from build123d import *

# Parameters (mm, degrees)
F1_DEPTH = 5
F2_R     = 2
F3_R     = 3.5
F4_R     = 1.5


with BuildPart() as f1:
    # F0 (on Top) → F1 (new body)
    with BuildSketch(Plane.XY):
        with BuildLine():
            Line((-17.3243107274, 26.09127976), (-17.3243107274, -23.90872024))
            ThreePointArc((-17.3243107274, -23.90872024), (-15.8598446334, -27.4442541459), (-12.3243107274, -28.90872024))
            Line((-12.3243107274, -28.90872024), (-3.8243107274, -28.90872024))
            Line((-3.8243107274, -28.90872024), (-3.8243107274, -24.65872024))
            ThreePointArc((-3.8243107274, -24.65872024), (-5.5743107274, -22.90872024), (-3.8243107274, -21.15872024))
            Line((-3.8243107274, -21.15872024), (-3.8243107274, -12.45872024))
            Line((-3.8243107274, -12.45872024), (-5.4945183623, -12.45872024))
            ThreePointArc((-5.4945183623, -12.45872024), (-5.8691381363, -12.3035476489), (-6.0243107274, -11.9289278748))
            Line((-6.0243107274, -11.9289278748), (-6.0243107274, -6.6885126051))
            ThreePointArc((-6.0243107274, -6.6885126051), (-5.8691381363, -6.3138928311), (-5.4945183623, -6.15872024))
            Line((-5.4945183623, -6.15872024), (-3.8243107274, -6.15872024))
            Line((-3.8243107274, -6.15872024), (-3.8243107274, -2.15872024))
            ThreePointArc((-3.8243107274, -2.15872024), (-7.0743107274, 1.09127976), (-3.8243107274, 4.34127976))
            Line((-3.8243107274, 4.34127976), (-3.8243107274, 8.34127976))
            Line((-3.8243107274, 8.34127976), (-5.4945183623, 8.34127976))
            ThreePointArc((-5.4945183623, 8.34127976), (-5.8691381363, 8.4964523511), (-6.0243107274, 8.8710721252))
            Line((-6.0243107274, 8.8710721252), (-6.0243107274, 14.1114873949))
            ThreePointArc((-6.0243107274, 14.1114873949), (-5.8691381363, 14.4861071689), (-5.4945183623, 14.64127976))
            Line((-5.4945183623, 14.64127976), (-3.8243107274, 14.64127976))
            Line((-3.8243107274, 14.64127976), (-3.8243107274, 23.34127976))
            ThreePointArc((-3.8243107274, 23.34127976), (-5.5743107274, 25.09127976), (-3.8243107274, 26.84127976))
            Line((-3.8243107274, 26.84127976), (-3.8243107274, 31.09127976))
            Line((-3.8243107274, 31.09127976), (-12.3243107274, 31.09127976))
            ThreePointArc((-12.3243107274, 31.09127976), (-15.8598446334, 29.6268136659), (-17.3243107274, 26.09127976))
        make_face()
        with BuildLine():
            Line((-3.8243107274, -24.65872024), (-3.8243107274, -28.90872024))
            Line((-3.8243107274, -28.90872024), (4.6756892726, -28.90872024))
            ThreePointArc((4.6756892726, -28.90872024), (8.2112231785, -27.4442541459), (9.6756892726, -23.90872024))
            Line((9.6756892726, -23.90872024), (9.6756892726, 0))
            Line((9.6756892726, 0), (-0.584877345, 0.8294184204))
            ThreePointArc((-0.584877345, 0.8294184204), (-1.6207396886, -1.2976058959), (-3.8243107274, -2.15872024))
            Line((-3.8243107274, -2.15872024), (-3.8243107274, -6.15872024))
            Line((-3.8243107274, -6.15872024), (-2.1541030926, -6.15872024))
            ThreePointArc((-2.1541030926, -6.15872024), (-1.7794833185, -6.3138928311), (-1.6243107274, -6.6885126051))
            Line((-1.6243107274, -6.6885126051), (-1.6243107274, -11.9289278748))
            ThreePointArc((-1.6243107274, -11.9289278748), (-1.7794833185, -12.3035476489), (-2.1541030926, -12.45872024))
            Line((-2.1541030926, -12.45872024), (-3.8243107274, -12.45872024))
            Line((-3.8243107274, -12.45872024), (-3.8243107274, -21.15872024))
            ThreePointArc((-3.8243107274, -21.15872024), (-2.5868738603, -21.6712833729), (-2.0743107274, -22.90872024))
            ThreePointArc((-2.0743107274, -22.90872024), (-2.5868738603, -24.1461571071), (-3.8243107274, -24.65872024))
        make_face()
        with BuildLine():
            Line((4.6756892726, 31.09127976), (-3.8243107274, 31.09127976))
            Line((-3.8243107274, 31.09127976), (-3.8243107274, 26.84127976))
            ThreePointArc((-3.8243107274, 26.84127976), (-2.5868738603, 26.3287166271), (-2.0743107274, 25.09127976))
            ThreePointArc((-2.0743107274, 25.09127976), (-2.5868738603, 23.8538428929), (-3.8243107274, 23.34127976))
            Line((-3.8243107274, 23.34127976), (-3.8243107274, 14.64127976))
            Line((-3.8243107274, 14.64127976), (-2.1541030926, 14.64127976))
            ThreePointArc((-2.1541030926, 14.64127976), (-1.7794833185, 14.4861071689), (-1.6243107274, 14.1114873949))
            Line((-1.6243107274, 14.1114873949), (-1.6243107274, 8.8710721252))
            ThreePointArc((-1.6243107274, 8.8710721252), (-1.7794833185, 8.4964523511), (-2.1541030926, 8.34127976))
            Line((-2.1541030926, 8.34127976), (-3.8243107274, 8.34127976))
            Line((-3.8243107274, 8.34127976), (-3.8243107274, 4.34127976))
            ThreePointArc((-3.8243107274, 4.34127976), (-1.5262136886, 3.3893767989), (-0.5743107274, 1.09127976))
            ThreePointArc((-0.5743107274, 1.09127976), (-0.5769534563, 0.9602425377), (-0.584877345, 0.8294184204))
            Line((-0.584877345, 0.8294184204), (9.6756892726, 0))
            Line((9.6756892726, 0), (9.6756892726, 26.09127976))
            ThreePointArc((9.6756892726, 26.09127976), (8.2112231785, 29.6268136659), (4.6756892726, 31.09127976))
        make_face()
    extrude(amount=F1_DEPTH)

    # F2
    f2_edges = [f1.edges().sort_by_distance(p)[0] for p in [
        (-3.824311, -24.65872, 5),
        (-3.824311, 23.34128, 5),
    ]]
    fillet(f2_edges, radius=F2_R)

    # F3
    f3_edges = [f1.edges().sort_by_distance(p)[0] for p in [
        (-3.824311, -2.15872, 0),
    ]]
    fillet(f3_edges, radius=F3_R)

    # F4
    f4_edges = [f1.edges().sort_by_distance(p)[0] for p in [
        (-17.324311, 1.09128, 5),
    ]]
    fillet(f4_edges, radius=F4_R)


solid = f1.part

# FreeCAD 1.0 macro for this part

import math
import FreeCAD as App
import Part
import Sketcher
from FreeCAD import Vector
Q = App.Units.Quantity


def edges_at(feature, points):
    """Names of the edges that pass closest to the given points."""
    edges = feature.Shape.Edges
    near = lambda p: min(range(len(edges)), key=lambda i: edges[i].distToShape(Part.Vertex(*p))[0])
    return sorted({f"Edge{near(p) + 1}" for p in points})

doc = App.newDocument("Part")
body = doc.addObject("PartDesign::Body", "Body")

# Sketch on XY plane
sketch1 = doc.addObject("Sketcher::SketchObject", "Sketch")
body.addObject(sketch1)
sketch1.AttachmentSupport = (doc.XY_Plane, [""])
sketch1.MapMode = "FlatFace"
sketch1.addGeometry([
    Part.LineSegment(Vector(-17.324311, 26.09128, 0), Vector(-17.324311, -23.90872, 0)),  # 0
    Part.ArcOfCircle(Part.Circle(Vector(-12.324311, -23.90872, 0), Vector(0, 0, 1), 5), math.radians(180), math.radians(270)),  # 1
    Part.LineSegment(Vector(-12.324311, -28.90872, 0), Vector(4.675689, -28.90872, 0)),  # 2
    Part.ArcOfCircle(Part.Circle(Vector(4.675689, -23.90872, 0), Vector(0, 0, 1), 5), math.radians(-90), math.radians(0)),  # 3
    Part.LineSegment(Vector(9.675689, -23.90872, 0), Vector(9.675689, 26.09128, 0)),  # 4
    Part.ArcOfCircle(Part.Circle(Vector(4.675689, 26.09128, 0), Vector(0, 0, 1), 5), math.radians(0), math.radians(90)),  # 5
    Part.LineSegment(Vector(4.675689, 31.09128, 0), Vector(-12.324311, 31.09128, 0)),  # 6
    Part.ArcOfCircle(Part.Circle(Vector(-12.324311, 26.09128, 0), Vector(0, 0, 1), 5), math.radians(90), math.radians(180)),  # 7
    Part.ArcOfCircle(Part.Circle(Vector(-3.824311, 1.09128, 0), Vector(0, 0, 1), 3.25), math.radians(-90), math.radians(-4.621486)),  # 8
    Part.ArcOfCircle(Part.Circle(Vector(-3.824311, 1.09128, 0), Vector(0, 0, 1), 3.25), math.radians(90), math.radians(270)),  # 9
    Part.ArcOfCircle(Part.Circle(Vector(-3.824311, 1.09128, 0), Vector(0, 0, 1), 3.25), math.radians(0), math.radians(90)),  # 10
    Part.ArcOfCircle(Part.Circle(Vector(-3.824311, 1.09128, 0), Vector(0, 0, 1), 3.25), math.radians(-4.621486), math.radians(0)),  # 11
    Part.ArcOfCircle(Part.Circle(Vector(-5.494518, 8.871072, 0), Vector(0, 0, 1), 0.529792), math.radians(180), math.radians(270)),  # 12
    Part.LineSegment(Vector(-6.024311, 8.871072, 0), Vector(-6.024311, 14.111487, 0)),  # 13
    Part.ArcOfCircle(Part.Circle(Vector(-5.494518, 14.111487, 0), Vector(0, 0, 1), 0.529792), math.radians(90), math.radians(180)),  # 14
    Part.LineSegment(Vector(-5.494518, 14.64128, 0), Vector(-2.154103, 14.64128, 0)),  # 15
    Part.ArcOfCircle(Part.Circle(Vector(-2.154103, 14.111487, 0), Vector(0, 0, 1), 0.529792), math.radians(0), math.radians(90)),  # 16
    Part.LineSegment(Vector(-1.624311, 14.111487, 0), Vector(-1.624311, 8.871072, 0)),  # 17
    Part.ArcOfCircle(Part.Circle(Vector(-2.154103, 8.871072, 0), Vector(0, 0, 1), 0.529792), math.radians(-90), math.radians(0)),  # 18
    Part.LineSegment(Vector(-2.154103, 8.34128, 0), Vector(-5.494518, 8.34128, 0)),  # 19
    Part.ArcOfCircle(Part.Circle(Vector(-3.824311, 25.09128, 0), Vector(0, 0, 1), 1.75), math.radians(90), math.radians(270)),  # 20
    Part.ArcOfCircle(Part.Circle(Vector(-3.824311, 25.09128, 0), Vector(0, 0, 1), 1.75), math.radians(0), math.radians(90)),  # 21
    Part.ArcOfCircle(Part.Circle(Vector(-3.824311, 25.09128, 0), Vector(0, 0, 1), 1.75), math.radians(-90), math.radians(0)),  # 22
    Part.ArcOfCircle(Part.Circle(Vector(-3.824311, -22.90872, 0), Vector(0, 0, 1), 1.75), math.radians(90), math.radians(270)),  # 23
    Part.ArcOfCircle(Part.Circle(Vector(-3.824311, -22.90872, 0), Vector(0, 0, 1), 1.75), math.radians(0), math.radians(90)),  # 24
    Part.ArcOfCircle(Part.Circle(Vector(-3.824311, -22.90872, 0), Vector(0, 0, 1), 1.75), math.radians(-90), math.radians(0)),  # 25
    Part.ArcOfCircle(Part.Circle(Vector(-5.494518, -11.928928, 0), Vector(0, 0, 1), 0.529792), math.radians(180), math.radians(270)),  # 26
    Part.LineSegment(Vector(-6.024311, -11.928928, 0), Vector(-6.024311, -6.688513, 0)),  # 27
    Part.ArcOfCircle(Part.Circle(Vector(-5.494518, -6.688513, 0), Vector(0, 0, 1), 0.529792), math.radians(90), math.radians(180)),  # 28
    Part.LineSegment(Vector(-5.494518, -6.15872, 0), Vector(-2.154103, -6.15872, 0)),  # 29
    Part.ArcOfCircle(Part.Circle(Vector(-2.154103, -6.688513, 0), Vector(0, 0, 1), 0.529792), math.radians(0), math.radians(90)),  # 30
    Part.LineSegment(Vector(-1.624311, -6.688513, 0), Vector(-1.624311, -11.928928, 0)),  # 31
    Part.ArcOfCircle(Part.Circle(Vector(-2.154103, -11.928928, 0), Vector(0, 0, 1), 0.529792), math.radians(-90), math.radians(0)),  # 32
    Part.LineSegment(Vector(-2.154103, -12.45872, 0), Vector(-5.494518, -12.45872, 0)),  # 33
], False)
sketch1.addConstraint([
    Sketcher.Constraint("Tangent", 0, 2, 1, 1),
    Sketcher.Constraint("Tangent", 1, 2, 2, 1),
    Sketcher.Constraint("Tangent", 2, 2, 3, 1),
    Sketcher.Constraint("Tangent", 3, 2, 4, 1),
    Sketcher.Constraint("Tangent", 4, 2, 5, 1),
    Sketcher.Constraint("Tangent", 5, 2, 6, 1),
    Sketcher.Constraint("Tangent", 6, 2, 7, 1),
    Sketcher.Constraint("Tangent", 7, 2, 0, 1),
    Sketcher.Constraint("Tangent", 8, 1, 9, 2),
    Sketcher.Constraint("Tangent", 9, 1, 10, 2),
    Sketcher.Constraint("Tangent", 10, 1, 11, 2),
    Sketcher.Constraint("Tangent", 11, 1, 8, 2),
    Sketcher.Constraint("Tangent", 12, 1, 13, 1),
    Sketcher.Constraint("Tangent", 13, 2, 14, 2),
    Sketcher.Constraint("Tangent", 14, 1, 15, 1),
    Sketcher.Constraint("Tangent", 15, 2, 16, 2),
    Sketcher.Constraint("Tangent", 16, 1, 17, 1),
    Sketcher.Constraint("Tangent", 17, 2, 18, 2),
    Sketcher.Constraint("Tangent", 18, 1, 19, 1),
    Sketcher.Constraint("Tangent", 19, 2, 12, 2),
    Sketcher.Constraint("Tangent", 20, 1, 21, 2),
    Sketcher.Constraint("Tangent", 21, 1, 22, 2),
    Sketcher.Constraint("Tangent", 22, 1, 20, 2),
    Sketcher.Constraint("Tangent", 23, 1, 24, 2),
    Sketcher.Constraint("Tangent", 24, 1, 25, 2),
    Sketcher.Constraint("Tangent", 25, 1, 23, 2),
    Sketcher.Constraint("Tangent", 26, 1, 27, 1),
    Sketcher.Constraint("Tangent", 27, 2, 28, 2),
    Sketcher.Constraint("Tangent", 28, 1, 29, 1),
    Sketcher.Constraint("Tangent", 29, 2, 30, 2),
    Sketcher.Constraint("Tangent", 30, 1, 31, 1),
    Sketcher.Constraint("Tangent", 31, 2, 32, 2),
    Sketcher.Constraint("Tangent", 32, 1, 33, 1),
    Sketcher.Constraint("Tangent", 33, 2, 26, 2),
    Sketcher.Constraint("Vertical", 0),
    Sketcher.Constraint("Horizontal", 2),
    Sketcher.Constraint("Vertical", 4),
    Sketcher.Constraint("Horizontal", 6),
    Sketcher.Constraint("Vertical", 13),
    Sketcher.Constraint("Horizontal", 15),
    Sketcher.Constraint("Vertical", 17),
    Sketcher.Constraint("Horizontal", 19),
    Sketcher.Constraint("Vertical", 27),
    Sketcher.Constraint("Horizontal", 29),
    Sketcher.Constraint("Vertical", 31),
    Sketcher.Constraint("Horizontal", 33),
    Sketcher.Constraint("Equal", 1, 3),
    Sketcher.Constraint("Equal", 3, 5),
    Sketcher.Constraint("Equal", 5, 7),
    Sketcher.Constraint("Equal", 8, 9),
    Sketcher.Constraint("Equal", 12, 14),
    Sketcher.Constraint("Equal", 14, 16),
    Sketcher.Constraint("Equal", 16, 18),
    Sketcher.Constraint("Equal", 22, 23),
    Sketcher.Constraint("Equal", 18, 26),
    Sketcher.Constraint("Equal", 26, 28),
    Sketcher.Constraint("Equal", 28, 30),
    Sketcher.Constraint("Equal", 30, 32),
    Sketcher.Constraint("Horizontal", 11, 3, 10, 1),
    Sketcher.Constraint("Horizontal", 22, 3, 21, 1),
    Sketcher.Constraint("Horizontal", 25, 3, 24, 1),
    Sketcher.Constraint("Vertical", 11, 3, 20, 3),
    Sketcher.Constraint("Vertical", 22, 3, 23, 3),
    Sketcher.Constraint("Vertical", 14, 3, 26, 3),
    Sketcher.Constraint("Vertical", 18, 3, 30, 3),
    Sketcher.Constraint("Vertical", 25, 3, 8, 1),
    Sketcher.Constraint("Vertical", 8, 1, 9, 1),
    Sketcher.Constraint("Vertical", 9, 1, 20, 1),
    Sketcher.Constraint("Vertical", 20, 1, 22, 1),
    Sketcher.Constraint("Vertical", 22, 1, 23, 1),
    Sketcher.Constraint("Vertical", 23, 1, 25, 1),
    Sketcher.Constraint("Equal", 17, 27),
    Sketcher.Constraint("Radius", 1, Q("5 mm")),
    Sketcher.Constraint("DistanceX", 2, 1, 2, 2, Q("17 mm")),
    Sketcher.Constraint("DistanceY", 0, 2, 0, 1, Q("50 mm")),
    Sketcher.Constraint("Radius", 8, Q("3.25 mm")),
    Sketcher.Constraint("Radius", 20, Q("1.75 mm")),
    Sketcher.Constraint("DistanceY", 3, 3, 8, 3, Q("25 mm")),
    Sketcher.Constraint("DistanceY", 20, 3, 5, 3, Q("1 mm")),
    Sketcher.Constraint("DistanceY", 3, 3, 23, 3, Q("1 mm")),
    Sketcher.Constraint("DistanceY", 9, 1, 18, 1, Q("4 mm")),
    Sketcher.Constraint("DistanceY", 28, 1, 8, 1, Q("4 mm")),
    Sketcher.Constraint("DistanceX", 8, 3, 3, 3, Q("8.5 mm")),
    Sketcher.Constraint("DistanceX", 12, 1, 9, 1, Q("2.2 mm")),
    Sketcher.Constraint("DistanceX", 13, 2, 16, 1, Q("4.4 mm")),
    Sketcher.Constraint("Radius", 12, Q("0.529792 mm")),
    Sketcher.Constraint("DistanceY", 13, 1, 13, 2, Q("5.240415 mm")),
    Sketcher.Constraint("DistanceX", 1, 3, -1, 1, Q("12.324311 mm")),
    Sketcher.Constraint("DistanceY", 1, 3, -1, 1, Q("23.90872 mm")),
    Sketcher.Constraint("DistanceY", -1, 1, 11, 1, Q("0.829418 mm")),
])
pad1 = doc.addObject("PartDesign::Pad", "Pad")
body.addObject(pad1)
pad1.Profile = sketch1
pad1.Length = 5
doc.recompute()

fillet = doc.addObject("PartDesign::Fillet", "Fillet")
body.addObject(fillet)
fillet.Base = (pad1, edges_at(pad1, [(-5.574, -22.909, 5), (-5.574, 25.091, 5)]))
fillet.Radius = 2
doc.recompute()

fillet2 = doc.addObject("PartDesign::Fillet", "Fillet001")
body.addObject(fillet2)
fillet2.Base = (fillet, edges_at(fillet, [(-7.074, 1.091, 0)]))
fillet2.Radius = 3.5
doc.recompute()

fillet3 = doc.addObject("PartDesign::Fillet", "Fillet002")
body.addObject(fillet3)
fillet3.Base = (fillet2, edges_at(fillet2, [(-17.324, 1.091, 5)]))
fillet3.Radius = 1.5

doc.recompute()
